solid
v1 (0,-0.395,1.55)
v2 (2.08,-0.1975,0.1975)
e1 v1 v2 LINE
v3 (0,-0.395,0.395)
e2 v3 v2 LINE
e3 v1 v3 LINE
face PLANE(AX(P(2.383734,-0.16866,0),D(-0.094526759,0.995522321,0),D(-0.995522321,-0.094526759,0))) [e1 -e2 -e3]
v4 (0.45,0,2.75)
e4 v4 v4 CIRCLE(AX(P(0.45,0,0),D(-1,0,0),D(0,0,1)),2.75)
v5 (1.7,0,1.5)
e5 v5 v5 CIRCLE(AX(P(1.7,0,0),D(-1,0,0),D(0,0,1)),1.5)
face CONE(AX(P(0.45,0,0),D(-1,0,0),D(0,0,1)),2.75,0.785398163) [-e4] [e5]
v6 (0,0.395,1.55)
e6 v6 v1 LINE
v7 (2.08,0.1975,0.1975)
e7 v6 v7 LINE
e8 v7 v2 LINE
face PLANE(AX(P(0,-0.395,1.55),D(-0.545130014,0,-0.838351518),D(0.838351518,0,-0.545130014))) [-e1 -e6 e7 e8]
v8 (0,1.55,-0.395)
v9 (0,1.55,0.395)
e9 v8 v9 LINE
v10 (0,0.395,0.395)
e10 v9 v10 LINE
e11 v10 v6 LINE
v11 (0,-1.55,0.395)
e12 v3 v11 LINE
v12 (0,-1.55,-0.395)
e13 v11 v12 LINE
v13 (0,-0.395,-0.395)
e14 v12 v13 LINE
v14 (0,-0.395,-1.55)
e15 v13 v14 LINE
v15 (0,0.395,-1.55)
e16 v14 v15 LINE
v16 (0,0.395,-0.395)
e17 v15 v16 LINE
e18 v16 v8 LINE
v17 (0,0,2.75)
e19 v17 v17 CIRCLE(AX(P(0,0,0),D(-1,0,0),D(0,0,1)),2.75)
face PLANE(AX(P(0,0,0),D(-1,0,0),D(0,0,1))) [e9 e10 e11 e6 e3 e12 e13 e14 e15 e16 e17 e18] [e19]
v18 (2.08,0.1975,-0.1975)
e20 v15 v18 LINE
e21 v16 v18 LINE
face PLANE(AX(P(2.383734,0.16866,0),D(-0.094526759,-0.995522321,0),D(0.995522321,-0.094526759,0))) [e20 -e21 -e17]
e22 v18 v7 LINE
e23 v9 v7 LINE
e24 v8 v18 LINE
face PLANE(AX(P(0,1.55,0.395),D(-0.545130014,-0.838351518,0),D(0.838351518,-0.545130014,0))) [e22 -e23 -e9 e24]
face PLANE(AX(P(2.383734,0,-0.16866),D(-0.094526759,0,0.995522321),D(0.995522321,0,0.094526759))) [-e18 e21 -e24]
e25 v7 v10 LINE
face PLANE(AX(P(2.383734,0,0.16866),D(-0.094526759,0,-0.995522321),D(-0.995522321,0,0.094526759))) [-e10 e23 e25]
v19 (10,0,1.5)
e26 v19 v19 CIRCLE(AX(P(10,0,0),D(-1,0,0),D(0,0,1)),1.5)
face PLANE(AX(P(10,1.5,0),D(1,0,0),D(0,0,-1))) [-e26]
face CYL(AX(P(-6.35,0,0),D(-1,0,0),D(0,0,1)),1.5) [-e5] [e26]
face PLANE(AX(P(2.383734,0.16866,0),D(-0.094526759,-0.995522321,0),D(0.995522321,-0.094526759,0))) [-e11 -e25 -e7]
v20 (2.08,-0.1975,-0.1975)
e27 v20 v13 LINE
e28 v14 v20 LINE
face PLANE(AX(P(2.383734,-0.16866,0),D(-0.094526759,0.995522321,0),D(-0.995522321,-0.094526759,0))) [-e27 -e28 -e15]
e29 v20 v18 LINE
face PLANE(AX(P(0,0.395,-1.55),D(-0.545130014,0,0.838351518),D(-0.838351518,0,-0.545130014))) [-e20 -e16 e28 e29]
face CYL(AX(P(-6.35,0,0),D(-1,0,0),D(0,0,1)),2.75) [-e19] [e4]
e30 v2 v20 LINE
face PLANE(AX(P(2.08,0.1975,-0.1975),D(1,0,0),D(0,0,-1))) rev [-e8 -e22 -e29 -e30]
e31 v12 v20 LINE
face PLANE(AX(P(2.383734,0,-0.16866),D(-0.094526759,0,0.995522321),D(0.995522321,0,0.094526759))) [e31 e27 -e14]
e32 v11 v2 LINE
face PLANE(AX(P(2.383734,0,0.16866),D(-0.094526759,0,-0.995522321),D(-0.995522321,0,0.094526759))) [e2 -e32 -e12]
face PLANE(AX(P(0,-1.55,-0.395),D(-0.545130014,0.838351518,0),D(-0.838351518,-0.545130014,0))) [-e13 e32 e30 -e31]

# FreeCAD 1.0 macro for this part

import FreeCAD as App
import Part
import Sketcher

V = App.Vector
Q = App.Units.Quantity


def add_polygon(sketch, points):
    """Adds a closed chain of lines whose ends are joined by coincident constraints."""
    first, n = sketch.GeometryCount, len(points)
    for a, b in zip(points, points[1:] + points[:1]):
        sketch.addGeometry(Part.LineSegment(App.Vector(*a, 0), App.Vector(*b, 0)), False)
    for i in range(n):
        sketch.addConstraint(Sketcher.Constraint("Coincident", first + i, 2, first + (i + 1) % n, 1))

doc = App.newDocument("Part")
params = doc.addObject("Spreadsheet::Sheet", "Params")
for row, (alias, value) in enumerate([
    ("sketch1_width", "10 mm"),
    ("sketch1_width2", "8.3 mm"),
    ("sketch1_height", "1.5 mm"),
    ("sketch1_width3", "0.45 mm"),
    ("revolution_angle", "360 deg"),
    ("sketch2_width", "3.1 mm"),
    ("sketch2_height", "0.79 mm"),
], start=1):
    params.set(f"A{row}", alias)
    params.set(f"B{row}", "=" + value)
    params.setAlias(f"B{row}", alias)

body = doc.addObject("PartDesign::Body", "Body")

# Sketch on XY plane
sketch1 = doc.addObject("Sketcher::SketchObject", "Sketch")
body.addObject(sketch1)
sketch1.AttachmentSupport = (doc.XY_Plane, [""])
sketch1.MapMode = "FlatFace"
add_polygon(sketch1, [(0, 2.75), (0, 0), (10, 0), (10, 1.5), (1.7, 1.5), (0.45, 2.75)])  # lines 0-5
sketch1.addConstraint([
    Sketcher.Constraint("Vertical", 0),
    Sketcher.Constraint("Horizontal", 1),
    Sketcher.Constraint("Vertical", 2),
    Sketcher.Constraint("Horizontal", 3),
    Sketcher.Constraint("Horizontal", 5),
    Sketcher.Constraint("Coincident", 0, 2, -1, 1),
    Sketcher.Constraint("DistanceX", 1, 1, 1, 2, 10.0),
    Sketcher.Constraint("Angle", 4, Q("135 deg")),
    Sketcher.Constraint("DistanceX", 3, 2, 3, 1, 8.3),
    Sketcher.Constraint("DistanceY", 2, 1, 2, 2, 1.5),
    Sketcher.Constraint("DistanceX", 5, 2, 5, 1, 0.45),
])
sketch1.setExpression("Constraints[12]", "Params.sketch1_width")
sketch1.setExpression("Constraints[14]", "Params.sketch1_width2")
sketch1.setExpression("Constraints[15]", "Params.sketch1_height")
sketch1.setExpression("Constraints[16]", "Params.sketch1_width3")
revolution = doc.addObject("PartDesign::Revolution", "Revolution")
body.addObject(revolution)
revolution.Profile = sketch1
revolution.ReferenceAxis = (sketch1, ["H_Axis"])
revolution.setExpression("Angle", "Params.revolution_angle")

# Sketch on YZ plane
sketch2 = doc.addObject("Sketcher::SketchObject", "Sketch001")
body.addObject(sketch2)
sketch2.AttachmentSupport = (doc.YZ_Plane, [""])
sketch2.MapMode = "FlatFace"
add_polygon(sketch2, [(1.6, 0.4), (1.6, -0.4), (-1.6, -0.4), (-1.6, 0.4)])  # lines 0-3
sketch2.addConstraint([
    Sketcher.Constraint("Vertical", 0),
    Sketcher.Constraint("Horizontal", 1),
    Sketcher.Constraint("Vertical", 2),
    Sketcher.Constraint("Horizontal", 3),
    Sketcher.Constraint("Symmetric", 0, 2, 2, 2, -1, 1),
    Sketcher.Constraint("DistanceX", 1, 2, 1, 1, 3.1),
    Sketcher.Constraint("DistanceY", 0, 2, 0, 1, 0.79),
])
sketch2.setExpression("Constraints[9]", "Params.sketch2_width")
sketch2.setExpression("Constraints[10]", "Params.sketch2_height")

# Sketch on YZ plane
sketch3 = doc.addObject("Sketcher::SketchObject", "Sketch002")
body.addObject(sketch3)
sketch3.AttachmentSupport = (doc.YZ_Plane, [""])
sketch3.MapMode = "FlatFace"
sketch3.AttachmentOffset = App.Placement(V(0, 0, 2.08), App.Rotation())
add_polygon(sketch3, [(0.2, 0.2), (0.2, -0.2), (-0.2, -0.2), (-0.2, 0.2)])  # lines 0-3
sketch3.addConstraint([
    Sketcher.Constraint("Vertical", 0),
    Sketcher.Constraint("Horizontal", 1),
    Sketcher.Constraint("Vertical", 2),
    Sketcher.Constraint("Horizontal", 3),
    Sketcher.Constraint("Symmetric", 0, 2, 2, 2, -1, 1),
    Sketcher.Constraint("Equal", 3, 0),
    Sketcher.Constraint("DistanceX", 1, 2, 1, 1, 0.395),
])

subtractiveloft = doc.addObject("PartDesign::SubtractiveLoft", "SubtractiveLoft")
body.addObject(subtractiveloft)
subtractiveloft.Profile = sketch2
subtractiveloft.Sections = [sketch3]
doc.recompute()

polarpattern = doc.addObject("PartDesign::PolarPattern", "PolarPattern")
body.addObject(polarpattern)
polarpattern.Originals = [subtractiveloft]
polarpattern.Axis = (doc.X_Axis, [""])
polarpattern.Angle = 90
polarpattern.Occurrences = 2
body.Tip = polarpattern

doc.recompute()
